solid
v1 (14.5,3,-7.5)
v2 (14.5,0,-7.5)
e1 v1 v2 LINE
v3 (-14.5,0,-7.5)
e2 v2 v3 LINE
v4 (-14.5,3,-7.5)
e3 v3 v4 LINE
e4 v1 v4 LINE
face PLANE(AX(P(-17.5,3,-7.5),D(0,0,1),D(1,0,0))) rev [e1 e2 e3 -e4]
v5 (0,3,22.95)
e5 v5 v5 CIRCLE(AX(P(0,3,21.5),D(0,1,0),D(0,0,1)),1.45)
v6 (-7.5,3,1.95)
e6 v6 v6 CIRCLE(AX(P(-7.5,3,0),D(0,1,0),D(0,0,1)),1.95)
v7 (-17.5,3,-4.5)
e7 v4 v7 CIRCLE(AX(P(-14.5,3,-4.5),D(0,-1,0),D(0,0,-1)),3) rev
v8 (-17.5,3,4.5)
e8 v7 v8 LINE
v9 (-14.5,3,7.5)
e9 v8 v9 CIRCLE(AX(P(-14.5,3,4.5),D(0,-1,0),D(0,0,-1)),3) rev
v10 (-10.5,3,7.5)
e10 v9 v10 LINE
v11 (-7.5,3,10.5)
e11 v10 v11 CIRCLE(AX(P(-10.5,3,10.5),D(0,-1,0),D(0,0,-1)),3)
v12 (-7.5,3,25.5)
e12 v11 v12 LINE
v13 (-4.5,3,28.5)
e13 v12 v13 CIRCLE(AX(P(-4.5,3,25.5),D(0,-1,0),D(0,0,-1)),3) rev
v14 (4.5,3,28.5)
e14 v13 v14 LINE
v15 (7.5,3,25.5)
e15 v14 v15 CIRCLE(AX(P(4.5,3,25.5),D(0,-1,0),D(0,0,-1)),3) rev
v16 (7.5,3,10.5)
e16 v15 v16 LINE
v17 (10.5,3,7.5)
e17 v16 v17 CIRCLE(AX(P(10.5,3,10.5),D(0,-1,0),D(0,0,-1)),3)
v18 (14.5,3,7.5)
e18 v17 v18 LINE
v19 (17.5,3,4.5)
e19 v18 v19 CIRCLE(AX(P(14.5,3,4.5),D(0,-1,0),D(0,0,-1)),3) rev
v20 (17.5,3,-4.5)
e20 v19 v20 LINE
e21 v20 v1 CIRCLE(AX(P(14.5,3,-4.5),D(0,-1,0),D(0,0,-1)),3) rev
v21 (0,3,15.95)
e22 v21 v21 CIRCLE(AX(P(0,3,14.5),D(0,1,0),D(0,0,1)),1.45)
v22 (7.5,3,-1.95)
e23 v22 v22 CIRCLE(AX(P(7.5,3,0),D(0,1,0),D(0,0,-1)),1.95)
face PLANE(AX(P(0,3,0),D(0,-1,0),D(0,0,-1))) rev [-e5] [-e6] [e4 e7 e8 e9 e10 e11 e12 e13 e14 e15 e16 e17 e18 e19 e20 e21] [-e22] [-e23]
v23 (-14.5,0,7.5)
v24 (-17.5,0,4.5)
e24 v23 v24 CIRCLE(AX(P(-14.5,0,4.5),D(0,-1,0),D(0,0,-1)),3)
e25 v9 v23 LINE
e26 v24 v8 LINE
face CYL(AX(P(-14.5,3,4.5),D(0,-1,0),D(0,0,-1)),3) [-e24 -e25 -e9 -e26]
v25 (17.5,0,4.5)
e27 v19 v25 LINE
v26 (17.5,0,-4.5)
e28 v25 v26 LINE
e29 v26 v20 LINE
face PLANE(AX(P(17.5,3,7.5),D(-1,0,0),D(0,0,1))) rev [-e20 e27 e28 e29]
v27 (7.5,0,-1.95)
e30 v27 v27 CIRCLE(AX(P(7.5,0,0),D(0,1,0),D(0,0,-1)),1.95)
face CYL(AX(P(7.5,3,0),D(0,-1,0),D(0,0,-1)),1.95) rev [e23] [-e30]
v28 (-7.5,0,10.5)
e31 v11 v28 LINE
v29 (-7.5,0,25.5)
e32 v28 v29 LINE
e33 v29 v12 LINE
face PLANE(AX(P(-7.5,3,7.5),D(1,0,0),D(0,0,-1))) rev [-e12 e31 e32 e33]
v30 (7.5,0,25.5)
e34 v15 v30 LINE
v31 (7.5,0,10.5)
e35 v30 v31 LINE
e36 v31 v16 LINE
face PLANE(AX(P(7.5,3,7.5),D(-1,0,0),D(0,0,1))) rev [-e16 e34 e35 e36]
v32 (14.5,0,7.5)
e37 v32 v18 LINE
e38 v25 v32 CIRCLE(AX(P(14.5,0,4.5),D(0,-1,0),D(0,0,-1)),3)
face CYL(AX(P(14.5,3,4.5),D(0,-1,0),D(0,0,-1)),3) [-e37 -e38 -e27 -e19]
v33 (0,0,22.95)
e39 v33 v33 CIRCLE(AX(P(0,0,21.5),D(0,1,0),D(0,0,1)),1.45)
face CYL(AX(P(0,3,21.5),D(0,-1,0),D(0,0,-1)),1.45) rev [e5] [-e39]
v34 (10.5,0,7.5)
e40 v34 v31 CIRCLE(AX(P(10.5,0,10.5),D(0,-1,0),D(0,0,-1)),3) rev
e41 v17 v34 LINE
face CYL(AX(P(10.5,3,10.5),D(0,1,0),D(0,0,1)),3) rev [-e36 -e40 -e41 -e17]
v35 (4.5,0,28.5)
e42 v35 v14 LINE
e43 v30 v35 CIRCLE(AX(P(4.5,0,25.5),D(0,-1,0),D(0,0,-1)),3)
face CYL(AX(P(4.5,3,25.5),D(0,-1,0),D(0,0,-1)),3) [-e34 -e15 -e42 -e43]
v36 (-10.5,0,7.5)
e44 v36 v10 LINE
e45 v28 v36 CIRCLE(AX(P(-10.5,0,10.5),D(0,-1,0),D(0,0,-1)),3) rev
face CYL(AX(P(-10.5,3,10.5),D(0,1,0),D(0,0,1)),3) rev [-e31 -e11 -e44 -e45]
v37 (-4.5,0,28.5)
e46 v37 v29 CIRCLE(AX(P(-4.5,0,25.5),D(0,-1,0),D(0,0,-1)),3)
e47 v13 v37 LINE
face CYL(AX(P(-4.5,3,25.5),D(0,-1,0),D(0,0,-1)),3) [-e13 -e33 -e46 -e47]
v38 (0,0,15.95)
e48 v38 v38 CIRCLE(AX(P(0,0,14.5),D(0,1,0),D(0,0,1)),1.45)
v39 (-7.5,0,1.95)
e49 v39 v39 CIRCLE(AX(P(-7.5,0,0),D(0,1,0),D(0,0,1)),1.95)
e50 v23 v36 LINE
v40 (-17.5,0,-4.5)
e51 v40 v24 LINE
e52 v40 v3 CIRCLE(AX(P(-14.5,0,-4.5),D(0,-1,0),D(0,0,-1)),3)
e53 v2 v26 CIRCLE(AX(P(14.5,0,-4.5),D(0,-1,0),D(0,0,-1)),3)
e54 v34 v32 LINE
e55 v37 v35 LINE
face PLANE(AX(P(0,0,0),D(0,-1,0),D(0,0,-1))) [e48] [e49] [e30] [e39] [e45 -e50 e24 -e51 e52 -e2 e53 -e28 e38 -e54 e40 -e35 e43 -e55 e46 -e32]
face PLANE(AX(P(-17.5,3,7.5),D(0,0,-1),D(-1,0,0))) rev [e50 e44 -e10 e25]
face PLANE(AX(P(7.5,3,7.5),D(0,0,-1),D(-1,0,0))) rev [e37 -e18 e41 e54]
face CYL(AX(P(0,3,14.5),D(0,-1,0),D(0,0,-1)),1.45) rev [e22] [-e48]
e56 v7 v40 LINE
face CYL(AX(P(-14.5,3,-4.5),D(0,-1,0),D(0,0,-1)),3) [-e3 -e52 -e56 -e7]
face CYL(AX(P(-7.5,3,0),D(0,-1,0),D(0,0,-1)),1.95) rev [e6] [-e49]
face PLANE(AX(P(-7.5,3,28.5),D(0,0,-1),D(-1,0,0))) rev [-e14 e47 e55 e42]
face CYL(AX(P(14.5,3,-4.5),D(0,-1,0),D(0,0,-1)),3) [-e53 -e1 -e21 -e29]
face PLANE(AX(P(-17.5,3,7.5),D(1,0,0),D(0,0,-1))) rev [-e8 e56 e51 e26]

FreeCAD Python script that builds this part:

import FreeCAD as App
import Part
import Sketcher
from FreeCAD import Vector


def edges_at(feature, points):
    """Names of the edges that pass closest to the given points."""
    edges = feature.Shape.Edges
    near = lambda p: min(range(len(edges)), key=lambda i: edges[i].distToShape(Part.Vertex(*p))[0])
    return sorted({f"Edge{near(p) + 1}" for p in points})


def add_polygon(sketch, points):
    """Adds a closed chain of lines whose ends are joined by coincident constraints."""
    first, n = sketch.GeometryCount, len(points)
    for a, b in zip(points, points[1:] + points[:1]):
        sketch.addGeometry(Part.LineSegment(App.Vector(*a, 0), App.Vector(*b, 0)), False)
    for i in range(n):
        sketch.addConstraint(Sketcher.Constraint("Coincident", first + i, 2, first + (i + 1) % n, 1))

doc = App.newDocument("Part")
body = doc.addObject("PartDesign::Body", "Body")

sketch1 = body.newObject("Sketcher::SketchObject", "Sketch")
sketch1.AttachmentSupport = (doc.getObject("XZ_Plane"), [""])
sketch1.MapMode = "FlatFace"
add_polygon(sketch1, [(-17.5, -7.5), (-17.5, 7.5), (-7.5, 7.5), (-7.5, 28.5), (7.5, 28.5), (7.5, 7.5), (17.5, 7.5), (17.5, -7.5)])
sketch1.addGeometry(Part.Circle(Vector(0, 21.5, 0), Vector(0, 0, 1), 1.45), False)
sketch1.addGeometry(Part.Circle(Vector(0, 14.5, 0), Vector(0, 0, 1), 1.45), False)
sketch1.addGeometry(Part.Circle(Vector(7.5, 0, 0), Vector(0, 0, 1), 1.95), False)
sketch1.addGeometry(Part.Circle(Vector(-7.5, 0, 0), Vector(0, 0, 1), 1.95), False)
sketch1.addConstraint([
    Sketcher.Constraint("Vertical", 0),
    Sketcher.Constraint("Horizontal", 1),
    Sketcher.Constraint("Vertical", 2),
    Sketcher.Constraint("Horizontal", 3),
    Sketcher.Constraint("Vertical", 4),
    Sketcher.Constraint("Horizontal", 5),
    Sketcher.Constraint("Vertical", 6),
    Sketcher.Constraint("Horizontal", 7),
    Sketcher.Constraint("Equal", 8, 9),
    Sketcher.Constraint("Equal", 10, 11),
    Sketcher.Constraint("Symmetric", 10, 3, 11, 3, -1, 1),
    Sketcher.Constraint("Symmetric", 0, 2, 6, 2, -1, 1),
    Sketcher.Constraint("Symmetric", 1, 2, 4, 2, -2),
    Sketcher.Constraint("PointOnObject", 8, 3, -2),
    Sketcher.Constraint("PointOnObject", 9, 3, -2),
    Sketcher.Constraint("PointOnObject", 10, 3, -1),
    Sketcher.Constraint("Vertical", 11, 3, 1, 2),
    Sketcher.Constraint("Equal", 3, 0),
    Sketcher.Constraint("Diameter", 8, 2.9),
    Sketcher.Constraint("Diameter", 10, 3.9),
    Sketcher.Constraint("DistanceX", 1, 1, 1, 2, 10.0),
    Sketcher.Constraint("DistanceX", 3, 1, 3, 2, 15.0),
    Sketcher.Constraint("DistanceY", 2, 1, 2, 2, 21.0),
    Sketcher.Constraint("DistanceY", 9, 3, 8, 3, 7.0),
    Sketcher.Constraint("DistanceY", 0, 2, 9, 3, 7.0),
])
pad1 = body.newObject("PartDesign::Pad", "Pad")
pad1.Profile = sketch1
pad1.Length = 3
pad1.Reversed = True
doc.recompute()

fillet = body.newObject("PartDesign::Fillet", "Fillet")
fillet.Base = (pad1, edges_at(pad1, [
    (17.5, 1.5, 7.5),
    (7.5, 1.5, 7.5),
    (7.5, 1.5, 28.5),
    (-7.5, 1.5, 28.5),
    (-7.5, 1.5, 7.5),
    (-17.5, 1.5, 7.5),
    (-17.5, 1.5, -7.5),
    (17.5, 1.5, -7.5),
]))
fillet.Radius = 3

doc.recompute()
